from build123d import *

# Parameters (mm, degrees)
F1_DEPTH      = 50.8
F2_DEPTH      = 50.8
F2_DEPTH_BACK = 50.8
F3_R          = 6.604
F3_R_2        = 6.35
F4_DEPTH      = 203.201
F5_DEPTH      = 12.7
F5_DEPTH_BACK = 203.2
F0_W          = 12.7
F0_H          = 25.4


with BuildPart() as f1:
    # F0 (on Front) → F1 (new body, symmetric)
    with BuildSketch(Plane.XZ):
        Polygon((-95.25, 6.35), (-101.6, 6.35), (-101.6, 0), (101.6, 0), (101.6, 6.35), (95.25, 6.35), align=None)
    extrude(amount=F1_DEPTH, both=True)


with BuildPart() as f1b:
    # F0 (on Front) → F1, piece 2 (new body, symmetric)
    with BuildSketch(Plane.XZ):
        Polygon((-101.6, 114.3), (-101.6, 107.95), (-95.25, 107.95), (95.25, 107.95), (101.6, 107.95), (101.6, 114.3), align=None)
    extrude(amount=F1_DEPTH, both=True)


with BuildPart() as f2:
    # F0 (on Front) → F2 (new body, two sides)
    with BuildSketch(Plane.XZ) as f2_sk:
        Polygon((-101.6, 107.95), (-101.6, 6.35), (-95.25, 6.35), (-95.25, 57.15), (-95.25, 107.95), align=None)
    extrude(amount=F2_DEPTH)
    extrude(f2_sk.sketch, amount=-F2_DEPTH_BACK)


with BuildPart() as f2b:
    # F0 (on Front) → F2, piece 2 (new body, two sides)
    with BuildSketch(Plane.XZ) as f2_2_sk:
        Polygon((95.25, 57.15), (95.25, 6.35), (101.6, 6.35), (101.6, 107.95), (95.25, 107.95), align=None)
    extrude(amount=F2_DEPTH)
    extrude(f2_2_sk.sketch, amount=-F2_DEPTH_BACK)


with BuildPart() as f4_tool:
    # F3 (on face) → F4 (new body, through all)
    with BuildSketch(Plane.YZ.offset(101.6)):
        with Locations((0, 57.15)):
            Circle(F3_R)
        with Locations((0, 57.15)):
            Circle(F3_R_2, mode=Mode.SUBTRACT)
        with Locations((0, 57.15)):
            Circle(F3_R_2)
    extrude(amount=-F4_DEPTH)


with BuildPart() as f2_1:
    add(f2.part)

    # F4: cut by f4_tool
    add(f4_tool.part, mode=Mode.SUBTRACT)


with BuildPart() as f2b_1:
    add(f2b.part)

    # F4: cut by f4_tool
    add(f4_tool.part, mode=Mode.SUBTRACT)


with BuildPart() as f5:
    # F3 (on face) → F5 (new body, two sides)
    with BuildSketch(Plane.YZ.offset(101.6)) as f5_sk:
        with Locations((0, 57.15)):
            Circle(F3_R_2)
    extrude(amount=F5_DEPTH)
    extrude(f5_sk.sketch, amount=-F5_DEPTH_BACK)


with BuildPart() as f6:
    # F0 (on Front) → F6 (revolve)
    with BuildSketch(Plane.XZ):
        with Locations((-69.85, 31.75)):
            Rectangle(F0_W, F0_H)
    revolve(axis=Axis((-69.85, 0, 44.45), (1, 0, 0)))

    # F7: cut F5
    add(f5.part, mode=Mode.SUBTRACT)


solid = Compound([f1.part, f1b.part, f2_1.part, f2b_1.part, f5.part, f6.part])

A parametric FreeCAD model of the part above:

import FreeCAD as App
import Part
import Sketcher

V = App.Vector
Q = App.Units.Quantity

doc = App.newDocument("Part")
body = doc.addObject("PartDesign::Body", "Body")

sketch1 = body.newObject("Sketcher::SketchObject", "Sketch")
sketch1.AttachmentSupport = (doc.getObject("XZ_Plane"), [""])
sketch1.MapMode = "FlatFace"
sketch1.addGeometry(Part.LineSegment(V(-101.6, 6.35, 0), V(-101.6, 0, 0)), False)
sketch1.addGeometry(Part.LineSegment(V(-101.6, 0, 0), V(101.6, 0, 0)), False)
sketch1.addGeometry(Part.LineSegment(V(101.6, 0, 0), V(101.6, 6.35, 0)), False)
sketch1.addGeometry(Part.LineSegment(V(101.6, 6.35, 0), V(-101.6, 6.35, 0)), False)
sketch1.addConstraint(Sketcher.Constraint("Coincident", 0, 2, 1, 1))
sketch1.addConstraint(Sketcher.Constraint("Coincident", 1, 2, 2, 1))
sketch1.addConstraint(Sketcher.Constraint("Coincident", 2, 2, 3, 1))
sketch1.addConstraint(Sketcher.Constraint("Coincident", 3, 2, 0, 1))
sketch1.addConstraint(Sketcher.Constraint("Vertical", 0))
sketch1.addConstraint(Sketcher.Constraint("Horizontal", 1))
sketch1.addConstraint(Sketcher.Constraint("Vertical", 2))
sketch1.addConstraint(Sketcher.Constraint("Horizontal", 3))
sketch1.addConstraint(Sketcher.Constraint("Symmetric", 0, 2, 1, 2, -1, 1))
sketch1.addConstraint(Sketcher.Constraint("DistanceX", 1, 1, 1, 2, Q("8 in")))
sketch1.addConstraint(Sketcher.Constraint("DistanceY", 0, 2, 0, 1, Q("0.25 in")))
pad1 = body.newObject("PartDesign::Pad", "Pad")
pad1.Profile = sketch1
pad1.Length = Q("4 in")
pad1.Midplane = True
body2 = doc.addObject("PartDesign::Body", "Body001")

sketch2 = body2.newObject("Sketcher::SketchObject", "Sketch001")
sketch2.AttachmentSupport = (doc.getObject("XZ_Plane001"), [""])
sketch2.MapMode = "FlatFace"
sketch2.addGeometry(Part.LineSegment(V(-101.6, 114.3, 0), V(-101.6, 107.95, 0)), False)
sketch2.addGeometry(Part.LineSegment(V(-101.6, 107.95, 0), V(101.6, 107.95, 0)), False)
sketch2.addGeometry(Part.LineSegment(V(101.6, 107.95, 0), V(101.6, 114.3, 0)), False)
sketch2.addGeometry(Part.LineSegment(V(101.6, 114.3, 0), V(-101.6, 114.3, 0)), False)
sketch2.addConstraint(Sketcher.Constraint("Coincident", 0, 2, 1, 1))
sketch2.addConstraint(Sketcher.Constraint("Coincident", 1, 2, 2, 1))
sketch2.addConstraint(Sketcher.Constraint("Coincident", 2, 2, 3, 1))
sketch2.addConstraint(Sketcher.Constraint("Coincident", 3, 2, 0, 1))
sketch2.addConstraint(Sketcher.Constraint("Vertical", 0))
sketch2.addConstraint(Sketcher.Constraint("Horizontal", 1))
sketch2.addConstraint(Sketcher.Constraint("Vertical", 2))
sketch2.addConstraint(Sketcher.Constraint("Horizontal", 3))
sketch2.addConstraint(Sketcher.Constraint("DistanceX", 1, 1, 1, 2, Q("8 in")))
sketch2.addConstraint(Sketcher.Constraint("DistanceX", 0, 2, -1, 1, Q("4 in")))
sketch2.addConstraint(Sketcher.Constraint("DistanceY", 0, 2, 0, 1, Q("0.25 in")))
sketch2.addConstraint(Sketcher.Constraint("DistanceY", -1, 1, 2, 2, Q("4.5 in")))
pad2 = body2.newObject("PartDesign::Pad", "Pad001")
pad2.Profile = sketch2
pad2.Length = Q("4 in")
pad2.Midplane = True
body3 = doc.addObject("PartDesign::Body", "Body002")

sketch3 = body3.newObject("Sketcher::SketchObject", "Sketch002")
sketch3.AttachmentSupport = (doc.getObject("XZ_Plane002"), [""])
sketch3.MapMode = "FlatFace"
sketch3.addGeometry(Part.LineSegment(V(-101.6, 107.95, 0), V(-101.6, 6.35, 0)), False)
sketch3.addGeometry(Part.LineSegment(V(-101.6, 6.35, 0), V(-95.25, 6.35, 0)), False)
sketch3.addGeometry(Part.LineSegment(V(-95.25, 6.35, 0), V(-95.25, 107.95, 0)), False)
sketch3.addGeometry(Part.LineSegment(V(-95.25, 107.95, 0), V(-101.6, 107.95, 0)), False)
sketch3.addConstraint(Sketcher.Constraint("Coincident", 0, 2, 1, 1))
sketch3.addConstraint(Sketcher.Constraint("Coincident", 1, 2, 2, 1))
sketch3.addConstraint(Sketcher.Constraint("Coincident", 2, 2, 3, 1))
sketch3.addConstraint(Sketcher.Constraint("Coincident", 3, 2, 0, 1))
sketch3.addConstraint(Sketcher.Constraint("Vertical", 0))
sketch3.addConstraint(Sketcher.Constraint("Horizontal", 1))
sketch3.addConstraint(Sketcher.Constraint("Vertical", 2))
sketch3.addConstraint(Sketcher.Constraint("Horizontal", 3))
sketch3.addConstraint(Sketcher.Constraint("DistanceY", 0, 2, 0, 1, Q("4 in")))
sketch3.addConstraint(Sketcher.Constraint("DistanceX", 0, 2, -1, 1, Q("4 in")))
sketch3.addConstraint(Sketcher.Constraint("DistanceX", 1, 1, 1, 2, Q("0.25 in")))
sketch3.addConstraint(Sketcher.Constraint("DistanceY", -1, 1, 0, 2, Q("0.25 in")))
pad3 = body3.newObject("PartDesign::Pad", "Pad002")
pad3.Profile = sketch3
pad3.Type = "TwoLengths"
pad3.Length = Q("2 in")
pad3.Length2 = Q("2 in")
body4 = doc.addObject("PartDesign::Body", "Body003")

sketch4 = body4.newObject("Sketcher::SketchObject", "Sketch003")
sketch4.AttachmentSupport = (doc.getObject("XZ_Plane003"), [""])
sketch4.MapMode = "FlatFace"
sketch4.addGeometry(Part.LineSegment(V(95.25, 6.35, 0), V(101.6, 6.35, 0)), False)
sketch4.addGeometry(Part.LineSegment(V(101.6, 6.35, 0), V(101.6, 107.95, 0)), False)
sketch4.addGeometry(Part.LineSegment(V(101.6, 107.95, 0), V(95.25, 107.95, 0)), False)
sketch4.addGeometry(Part.LineSegment(V(95.25, 107.95, 0), V(95.25, 6.35, 0)), False)
sketch4.addConstraint(Sketcher.Constraint("Coincident", 0, 2, 1, 1))
sketch4.addConstraint(Sketcher.Constraint("Coincident", 1, 2, 2, 1))
sketch4.addConstraint(Sketcher.Constraint("Coincident", 2, 2, 3, 1))
sketch4.addConstraint(Sketcher.Constraint("Coincident", 3, 2, 0, 1))
sketch4.addConstraint(Sketcher.Constraint("Horizontal", 0))
sketch4.addConstraint(Sketcher.Constraint("Vertical", 1))
sketch4.addConstraint(Sketcher.Constraint("Horizontal", 2))
sketch4.addConstraint(Sketcher.Constraint("Vertical", 3))
sketch4.addConstraint(Sketcher.Constraint("DistanceY", 1, 1, 1, 2, Q("4 in")))
sketch4.addConstraint(Sketcher.Constraint("DistanceX", -1, 1, 0, 2, Q("4 in")))
sketch4.addConstraint(Sketcher.Constraint("DistanceX", 0, 1, 0, 2, Q("0.25 in")))
sketch4.addConstraint(Sketcher.Constraint("DistanceY", -1, 1, 0, 2, Q("0.25 in")))
pad4 = body4.newObject("PartDesign::Pad", "Pad003")
pad4.Profile = sketch4
pad4.Type = "TwoLengths"
pad4.Length = Q("2 in")
pad4.Length2 = Q("2 in")
body5 = doc.addObject("PartDesign::Body", "Body004")

sketch5 = body5.newObject("Sketcher::SketchObject", "Sketch004")
sketch5.AttachmentSupport = (doc.getObject("YZ_Plane004"), [""])
sketch5.MapMode = "FlatFace"
sketch5.AttachmentOffset = App.Placement(V(0, 0, 4 * 25.4), App.Rotation())
sketch5.addGeometry(Part.Circle(V(0, 57.15, 0), V(0, 0, 1), 6.604), False)
sketch5.addConstraint(Sketcher.Constraint("PointOnObject", 0, 3, -2))
sketch5.addConstraint(Sketcher.Constraint("Diameter", 0, Q("0.52 in")))
sketch5.addConstraint(Sketcher.Constraint("DistanceY", -1, 1, 0, 3, Q("2.25 in")))
pad5 = body5.newObject("PartDesign::Pad", "Pad004")
pad5.Profile = sketch5
pad5.Length = 203.201
pad5.Reversed = True
doc.recompute()

body6 = doc.addObject("PartDesign::Body", "Body005")
body6.BaseFeature = body5
boolean = body3.newObject("PartDesign::Boolean", "Boolean")
boolean.Type = "Cut"
boolean.addObjects([body6])
doc.recompute()

boolean2 = body4.newObject("PartDesign::Boolean", "Boolean001")
boolean2.Type = "Cut"
boolean2.addObjects([body5])
body7 = doc.addObject("PartDesign::Body", "Body006")

sketch6 = body7.newObject("Sketcher::SketchObject", "Sketch005")
sketch6.AttachmentSupport = (doc.getObject("YZ_Plane006"), [""])
sketch6.MapMode = "FlatFace"
sketch6.AttachmentOffset = App.Placement(V(0, 0, 4 * 25.4), App.Rotation())
sketch6.addGeometry(Part.Circle(V(0, 57.15, 0), V(0, 0, 1), 6.35), False)
sketch6.addConstraint(Sketcher.Constraint("PointOnObject", 0, 3, -2))
sketch6.addConstraint(Sketcher.Constraint("Diameter", 0, Q("0.5 in")))
sketch6.addConstraint(Sketcher.Constraint("DistanceY", -1, 1, 0, 3, Q("2.25 in")))
pad6 = body7.newObject("PartDesign::Pad", "Pad005")
pad6.Profile = sketch6
pad6.Type = "TwoLengths"
pad6.Length = Q("0.5 in")
pad6.Length2 = Q("8 in")
body8 = doc.addObject("PartDesign::Body", "Body007")

sketch7 = body8.newObject("Sketcher::SketchObject", "Sketch006")
sketch7.AttachmentSupport = (doc.getObject("XZ_Plane007"), [""])
sketch7.MapMode = "FlatFace"
sketch7.addGeometry(Part.LineSegment(V(-76.2, 44.45, 0), V(-76.2, 19.05, 0)), False)
sketch7.addGeometry(Part.LineSegment(V(-76.2, 19.05, 0), V(-63.5, 19.05, 0)), False)
sketch7.addGeometry(Part.LineSegment(V(-63.5, 19.05, 0), V(-63.5, 44.45, 0)), False)
sketch7.addGeometry(Part.LineSegment(V(-63.5, 44.45, 0), V(-76.2, 44.45, 0)), False)
sketch7.addGeometry(Part.LineSegment(V(-76.2, 44.45, 0), V(-63.5, 44.45, 0)), True)
sketch7.addConstraint(Sketcher.Constraint("Coincident", 0, 2, 1, 1))
sketch7.addConstraint(Sketcher.Constraint("Coincident", 1, 2, 2, 1))
sketch7.addConstraint(Sketcher.Constraint("Coincident", 2, 2, 3, 1))
sketch7.addConstraint(Sketcher.Constraint("Coincident", 3, 2, 0, 1))
sketch7.addConstraint(Sketcher.Constraint("Vertical", 0))
sketch7.addConstraint(Sketcher.Constraint("Horizontal", 1))
sketch7.addConstraint(Sketcher.Constraint("Vertical", 2))
sketch7.addConstraint(Sketcher.Constraint("Horizontal", 3))
sketch7.addConstraint(Sketcher.Constraint("Horizontal", 4))
sketch7.addConstraint(Sketcher.Constraint("Coincident", 4, 1, 3, 2))
sketch7.addConstraint(Sketcher.Constraint("Vertical", 1, 2, 4, 2))
sketch7.addConstraint(Sketcher.Constraint("DistanceY", 0, 2, 0, 1, Q("1 in")))
sketch7.addConstraint(Sketcher.Constraint("DistanceX", 1, 1, 1, 2, Q("0.5 in")))
sketch7.addConstraint(Sketcher.Constraint("DistanceX", 0, 2, -1, 1, Q("3 in")))
sketch7.addConstraint(Sketcher.Constraint("DistanceY", -1, 1, 0, 2, Q("0.75 in")))
revolution = body8.newObject("PartDesign::Revolution", "Revolution")
revolution.Profile = sketch7
revolution.ReferenceAxis = (sketch7, ["Axis0"])
revolution.Angle = 360
doc.recompute()

body9 = doc.addObject("PartDesign::Body", "Body008")
body9.BaseFeature = body7
boolean3 = body8.newObject("PartDesign::Boolean", "Boolean002")
boolean3.Type = "Cut"
boolean3.addObjects([body9])
doc.recompute()

doc.recompute()
